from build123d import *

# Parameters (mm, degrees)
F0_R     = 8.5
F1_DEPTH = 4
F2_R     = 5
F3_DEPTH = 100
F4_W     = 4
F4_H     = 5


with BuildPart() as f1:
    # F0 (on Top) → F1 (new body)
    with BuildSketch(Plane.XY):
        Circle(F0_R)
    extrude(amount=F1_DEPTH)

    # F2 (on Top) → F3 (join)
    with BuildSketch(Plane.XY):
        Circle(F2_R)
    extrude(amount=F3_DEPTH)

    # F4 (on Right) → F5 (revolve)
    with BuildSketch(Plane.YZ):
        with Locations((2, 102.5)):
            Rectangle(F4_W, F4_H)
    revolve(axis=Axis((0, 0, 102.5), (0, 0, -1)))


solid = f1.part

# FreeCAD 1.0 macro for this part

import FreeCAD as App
import Part
import Sketcher
from FreeCAD import Vector
Q = App.Units.Quantity

doc = App.newDocument("Part")
body = doc.addObject("PartDesign::Body", "Body")

# Sketch on XY plane
sketch1 = body.newObject("Sketcher::SketchObject", "Sketch")
sketch1.AttachmentSupport = (doc.getObject("XY_Plane"), [""])
sketch1.MapMode = "FlatFace"
sketch1.addGeometry(Part.Circle(Vector(0, 0, 0), Vector(0, 0, 1), 8), False)
sketch1.addConstraint([
    Sketcher.Constraint("Coincident", 0, 3, -1, 1),
    Sketcher.Constraint("Diameter", 0, Q("17 mm")),
])
pad1 = body.newObject("PartDesign::Pad", "Pad")
pad1.Profile = sketch1
pad1.Length = 4

# Sketch on XY plane
sketch2 = body.newObject("Sketcher::SketchObject", "Sketch001")
sketch2.AttachmentSupport = (doc.getObject("XY_Plane"), [""])
sketch2.MapMode = "FlatFace"
sketch2.addGeometry(Part.Circle(Vector(0, 0, 0), Vector(0, 0, 1), 5), False)
sketch2.addConstraint([
    Sketcher.Constraint("Coincident", 0, 3, -1, 1),
    Sketcher.Constraint("Diameter", 0, Q("10 mm")),
])
pad2 = body.newObject("PartDesign::Pad", "Pad001")
pad2.Profile = sketch2
pad2.Length = 100

# Sketch on YZ plane
sketch3 = body.newObject("Sketcher::SketchObject", "Sketch002")
sketch3.AttachmentSupport = (doc.getObject("YZ_Plane"), [""])
sketch3.MapMode = "FlatFace"
sketch3.addGeometry([
    Part.LineSegment(Vector(0, 105, 0), Vector(0, 100, 0)),
    Part.LineSegment(Vector(0, 100, 0), Vector(4, 100, 0)),
    Part.LineSegment(Vector(4, 100, 0), Vector(4, 105, 0)),
    Part.LineSegment(Vector(4, 105, 0), Vector(0, 105, 0)),
], False)
sketch3.addConstraint([
    Sketcher.Constraint("Coincident", 0, 2, 1, 1),
    Sketcher.Constraint("Coincident", 1, 2, 2, 1),
    Sketcher.Constraint("Coincident", 2, 2, 3, 1),
    Sketcher.Constraint("Coincident", 3, 2, 0, 1),
    Sketcher.Constraint("Vertical", 0),
    Sketcher.Constraint("Horizontal", 1),
    Sketcher.Constraint("Vertical", 2),
    Sketcher.Constraint("Horizontal", 3),
    Sketcher.Constraint("PointOnObject", 0, 2, -2),
    Sketcher.Constraint("DistanceX", 1, 1, 1, 2, Q("4 mm")),
    Sketcher.Constraint("DistanceY", 0, 2, 0, 1, Q("5 mm")),
    Sketcher.Constraint("DistanceY", -1, 1, 0, 2, Q("100 mm")),
])
revolution = body.newObject("PartDesign::Revolution", "Revolution")
revolution.Profile = sketch3
revolution.ReferenceAxis = (sketch3, ["V_Axis"])
revolution.Angle = 360

doc.recompute()
